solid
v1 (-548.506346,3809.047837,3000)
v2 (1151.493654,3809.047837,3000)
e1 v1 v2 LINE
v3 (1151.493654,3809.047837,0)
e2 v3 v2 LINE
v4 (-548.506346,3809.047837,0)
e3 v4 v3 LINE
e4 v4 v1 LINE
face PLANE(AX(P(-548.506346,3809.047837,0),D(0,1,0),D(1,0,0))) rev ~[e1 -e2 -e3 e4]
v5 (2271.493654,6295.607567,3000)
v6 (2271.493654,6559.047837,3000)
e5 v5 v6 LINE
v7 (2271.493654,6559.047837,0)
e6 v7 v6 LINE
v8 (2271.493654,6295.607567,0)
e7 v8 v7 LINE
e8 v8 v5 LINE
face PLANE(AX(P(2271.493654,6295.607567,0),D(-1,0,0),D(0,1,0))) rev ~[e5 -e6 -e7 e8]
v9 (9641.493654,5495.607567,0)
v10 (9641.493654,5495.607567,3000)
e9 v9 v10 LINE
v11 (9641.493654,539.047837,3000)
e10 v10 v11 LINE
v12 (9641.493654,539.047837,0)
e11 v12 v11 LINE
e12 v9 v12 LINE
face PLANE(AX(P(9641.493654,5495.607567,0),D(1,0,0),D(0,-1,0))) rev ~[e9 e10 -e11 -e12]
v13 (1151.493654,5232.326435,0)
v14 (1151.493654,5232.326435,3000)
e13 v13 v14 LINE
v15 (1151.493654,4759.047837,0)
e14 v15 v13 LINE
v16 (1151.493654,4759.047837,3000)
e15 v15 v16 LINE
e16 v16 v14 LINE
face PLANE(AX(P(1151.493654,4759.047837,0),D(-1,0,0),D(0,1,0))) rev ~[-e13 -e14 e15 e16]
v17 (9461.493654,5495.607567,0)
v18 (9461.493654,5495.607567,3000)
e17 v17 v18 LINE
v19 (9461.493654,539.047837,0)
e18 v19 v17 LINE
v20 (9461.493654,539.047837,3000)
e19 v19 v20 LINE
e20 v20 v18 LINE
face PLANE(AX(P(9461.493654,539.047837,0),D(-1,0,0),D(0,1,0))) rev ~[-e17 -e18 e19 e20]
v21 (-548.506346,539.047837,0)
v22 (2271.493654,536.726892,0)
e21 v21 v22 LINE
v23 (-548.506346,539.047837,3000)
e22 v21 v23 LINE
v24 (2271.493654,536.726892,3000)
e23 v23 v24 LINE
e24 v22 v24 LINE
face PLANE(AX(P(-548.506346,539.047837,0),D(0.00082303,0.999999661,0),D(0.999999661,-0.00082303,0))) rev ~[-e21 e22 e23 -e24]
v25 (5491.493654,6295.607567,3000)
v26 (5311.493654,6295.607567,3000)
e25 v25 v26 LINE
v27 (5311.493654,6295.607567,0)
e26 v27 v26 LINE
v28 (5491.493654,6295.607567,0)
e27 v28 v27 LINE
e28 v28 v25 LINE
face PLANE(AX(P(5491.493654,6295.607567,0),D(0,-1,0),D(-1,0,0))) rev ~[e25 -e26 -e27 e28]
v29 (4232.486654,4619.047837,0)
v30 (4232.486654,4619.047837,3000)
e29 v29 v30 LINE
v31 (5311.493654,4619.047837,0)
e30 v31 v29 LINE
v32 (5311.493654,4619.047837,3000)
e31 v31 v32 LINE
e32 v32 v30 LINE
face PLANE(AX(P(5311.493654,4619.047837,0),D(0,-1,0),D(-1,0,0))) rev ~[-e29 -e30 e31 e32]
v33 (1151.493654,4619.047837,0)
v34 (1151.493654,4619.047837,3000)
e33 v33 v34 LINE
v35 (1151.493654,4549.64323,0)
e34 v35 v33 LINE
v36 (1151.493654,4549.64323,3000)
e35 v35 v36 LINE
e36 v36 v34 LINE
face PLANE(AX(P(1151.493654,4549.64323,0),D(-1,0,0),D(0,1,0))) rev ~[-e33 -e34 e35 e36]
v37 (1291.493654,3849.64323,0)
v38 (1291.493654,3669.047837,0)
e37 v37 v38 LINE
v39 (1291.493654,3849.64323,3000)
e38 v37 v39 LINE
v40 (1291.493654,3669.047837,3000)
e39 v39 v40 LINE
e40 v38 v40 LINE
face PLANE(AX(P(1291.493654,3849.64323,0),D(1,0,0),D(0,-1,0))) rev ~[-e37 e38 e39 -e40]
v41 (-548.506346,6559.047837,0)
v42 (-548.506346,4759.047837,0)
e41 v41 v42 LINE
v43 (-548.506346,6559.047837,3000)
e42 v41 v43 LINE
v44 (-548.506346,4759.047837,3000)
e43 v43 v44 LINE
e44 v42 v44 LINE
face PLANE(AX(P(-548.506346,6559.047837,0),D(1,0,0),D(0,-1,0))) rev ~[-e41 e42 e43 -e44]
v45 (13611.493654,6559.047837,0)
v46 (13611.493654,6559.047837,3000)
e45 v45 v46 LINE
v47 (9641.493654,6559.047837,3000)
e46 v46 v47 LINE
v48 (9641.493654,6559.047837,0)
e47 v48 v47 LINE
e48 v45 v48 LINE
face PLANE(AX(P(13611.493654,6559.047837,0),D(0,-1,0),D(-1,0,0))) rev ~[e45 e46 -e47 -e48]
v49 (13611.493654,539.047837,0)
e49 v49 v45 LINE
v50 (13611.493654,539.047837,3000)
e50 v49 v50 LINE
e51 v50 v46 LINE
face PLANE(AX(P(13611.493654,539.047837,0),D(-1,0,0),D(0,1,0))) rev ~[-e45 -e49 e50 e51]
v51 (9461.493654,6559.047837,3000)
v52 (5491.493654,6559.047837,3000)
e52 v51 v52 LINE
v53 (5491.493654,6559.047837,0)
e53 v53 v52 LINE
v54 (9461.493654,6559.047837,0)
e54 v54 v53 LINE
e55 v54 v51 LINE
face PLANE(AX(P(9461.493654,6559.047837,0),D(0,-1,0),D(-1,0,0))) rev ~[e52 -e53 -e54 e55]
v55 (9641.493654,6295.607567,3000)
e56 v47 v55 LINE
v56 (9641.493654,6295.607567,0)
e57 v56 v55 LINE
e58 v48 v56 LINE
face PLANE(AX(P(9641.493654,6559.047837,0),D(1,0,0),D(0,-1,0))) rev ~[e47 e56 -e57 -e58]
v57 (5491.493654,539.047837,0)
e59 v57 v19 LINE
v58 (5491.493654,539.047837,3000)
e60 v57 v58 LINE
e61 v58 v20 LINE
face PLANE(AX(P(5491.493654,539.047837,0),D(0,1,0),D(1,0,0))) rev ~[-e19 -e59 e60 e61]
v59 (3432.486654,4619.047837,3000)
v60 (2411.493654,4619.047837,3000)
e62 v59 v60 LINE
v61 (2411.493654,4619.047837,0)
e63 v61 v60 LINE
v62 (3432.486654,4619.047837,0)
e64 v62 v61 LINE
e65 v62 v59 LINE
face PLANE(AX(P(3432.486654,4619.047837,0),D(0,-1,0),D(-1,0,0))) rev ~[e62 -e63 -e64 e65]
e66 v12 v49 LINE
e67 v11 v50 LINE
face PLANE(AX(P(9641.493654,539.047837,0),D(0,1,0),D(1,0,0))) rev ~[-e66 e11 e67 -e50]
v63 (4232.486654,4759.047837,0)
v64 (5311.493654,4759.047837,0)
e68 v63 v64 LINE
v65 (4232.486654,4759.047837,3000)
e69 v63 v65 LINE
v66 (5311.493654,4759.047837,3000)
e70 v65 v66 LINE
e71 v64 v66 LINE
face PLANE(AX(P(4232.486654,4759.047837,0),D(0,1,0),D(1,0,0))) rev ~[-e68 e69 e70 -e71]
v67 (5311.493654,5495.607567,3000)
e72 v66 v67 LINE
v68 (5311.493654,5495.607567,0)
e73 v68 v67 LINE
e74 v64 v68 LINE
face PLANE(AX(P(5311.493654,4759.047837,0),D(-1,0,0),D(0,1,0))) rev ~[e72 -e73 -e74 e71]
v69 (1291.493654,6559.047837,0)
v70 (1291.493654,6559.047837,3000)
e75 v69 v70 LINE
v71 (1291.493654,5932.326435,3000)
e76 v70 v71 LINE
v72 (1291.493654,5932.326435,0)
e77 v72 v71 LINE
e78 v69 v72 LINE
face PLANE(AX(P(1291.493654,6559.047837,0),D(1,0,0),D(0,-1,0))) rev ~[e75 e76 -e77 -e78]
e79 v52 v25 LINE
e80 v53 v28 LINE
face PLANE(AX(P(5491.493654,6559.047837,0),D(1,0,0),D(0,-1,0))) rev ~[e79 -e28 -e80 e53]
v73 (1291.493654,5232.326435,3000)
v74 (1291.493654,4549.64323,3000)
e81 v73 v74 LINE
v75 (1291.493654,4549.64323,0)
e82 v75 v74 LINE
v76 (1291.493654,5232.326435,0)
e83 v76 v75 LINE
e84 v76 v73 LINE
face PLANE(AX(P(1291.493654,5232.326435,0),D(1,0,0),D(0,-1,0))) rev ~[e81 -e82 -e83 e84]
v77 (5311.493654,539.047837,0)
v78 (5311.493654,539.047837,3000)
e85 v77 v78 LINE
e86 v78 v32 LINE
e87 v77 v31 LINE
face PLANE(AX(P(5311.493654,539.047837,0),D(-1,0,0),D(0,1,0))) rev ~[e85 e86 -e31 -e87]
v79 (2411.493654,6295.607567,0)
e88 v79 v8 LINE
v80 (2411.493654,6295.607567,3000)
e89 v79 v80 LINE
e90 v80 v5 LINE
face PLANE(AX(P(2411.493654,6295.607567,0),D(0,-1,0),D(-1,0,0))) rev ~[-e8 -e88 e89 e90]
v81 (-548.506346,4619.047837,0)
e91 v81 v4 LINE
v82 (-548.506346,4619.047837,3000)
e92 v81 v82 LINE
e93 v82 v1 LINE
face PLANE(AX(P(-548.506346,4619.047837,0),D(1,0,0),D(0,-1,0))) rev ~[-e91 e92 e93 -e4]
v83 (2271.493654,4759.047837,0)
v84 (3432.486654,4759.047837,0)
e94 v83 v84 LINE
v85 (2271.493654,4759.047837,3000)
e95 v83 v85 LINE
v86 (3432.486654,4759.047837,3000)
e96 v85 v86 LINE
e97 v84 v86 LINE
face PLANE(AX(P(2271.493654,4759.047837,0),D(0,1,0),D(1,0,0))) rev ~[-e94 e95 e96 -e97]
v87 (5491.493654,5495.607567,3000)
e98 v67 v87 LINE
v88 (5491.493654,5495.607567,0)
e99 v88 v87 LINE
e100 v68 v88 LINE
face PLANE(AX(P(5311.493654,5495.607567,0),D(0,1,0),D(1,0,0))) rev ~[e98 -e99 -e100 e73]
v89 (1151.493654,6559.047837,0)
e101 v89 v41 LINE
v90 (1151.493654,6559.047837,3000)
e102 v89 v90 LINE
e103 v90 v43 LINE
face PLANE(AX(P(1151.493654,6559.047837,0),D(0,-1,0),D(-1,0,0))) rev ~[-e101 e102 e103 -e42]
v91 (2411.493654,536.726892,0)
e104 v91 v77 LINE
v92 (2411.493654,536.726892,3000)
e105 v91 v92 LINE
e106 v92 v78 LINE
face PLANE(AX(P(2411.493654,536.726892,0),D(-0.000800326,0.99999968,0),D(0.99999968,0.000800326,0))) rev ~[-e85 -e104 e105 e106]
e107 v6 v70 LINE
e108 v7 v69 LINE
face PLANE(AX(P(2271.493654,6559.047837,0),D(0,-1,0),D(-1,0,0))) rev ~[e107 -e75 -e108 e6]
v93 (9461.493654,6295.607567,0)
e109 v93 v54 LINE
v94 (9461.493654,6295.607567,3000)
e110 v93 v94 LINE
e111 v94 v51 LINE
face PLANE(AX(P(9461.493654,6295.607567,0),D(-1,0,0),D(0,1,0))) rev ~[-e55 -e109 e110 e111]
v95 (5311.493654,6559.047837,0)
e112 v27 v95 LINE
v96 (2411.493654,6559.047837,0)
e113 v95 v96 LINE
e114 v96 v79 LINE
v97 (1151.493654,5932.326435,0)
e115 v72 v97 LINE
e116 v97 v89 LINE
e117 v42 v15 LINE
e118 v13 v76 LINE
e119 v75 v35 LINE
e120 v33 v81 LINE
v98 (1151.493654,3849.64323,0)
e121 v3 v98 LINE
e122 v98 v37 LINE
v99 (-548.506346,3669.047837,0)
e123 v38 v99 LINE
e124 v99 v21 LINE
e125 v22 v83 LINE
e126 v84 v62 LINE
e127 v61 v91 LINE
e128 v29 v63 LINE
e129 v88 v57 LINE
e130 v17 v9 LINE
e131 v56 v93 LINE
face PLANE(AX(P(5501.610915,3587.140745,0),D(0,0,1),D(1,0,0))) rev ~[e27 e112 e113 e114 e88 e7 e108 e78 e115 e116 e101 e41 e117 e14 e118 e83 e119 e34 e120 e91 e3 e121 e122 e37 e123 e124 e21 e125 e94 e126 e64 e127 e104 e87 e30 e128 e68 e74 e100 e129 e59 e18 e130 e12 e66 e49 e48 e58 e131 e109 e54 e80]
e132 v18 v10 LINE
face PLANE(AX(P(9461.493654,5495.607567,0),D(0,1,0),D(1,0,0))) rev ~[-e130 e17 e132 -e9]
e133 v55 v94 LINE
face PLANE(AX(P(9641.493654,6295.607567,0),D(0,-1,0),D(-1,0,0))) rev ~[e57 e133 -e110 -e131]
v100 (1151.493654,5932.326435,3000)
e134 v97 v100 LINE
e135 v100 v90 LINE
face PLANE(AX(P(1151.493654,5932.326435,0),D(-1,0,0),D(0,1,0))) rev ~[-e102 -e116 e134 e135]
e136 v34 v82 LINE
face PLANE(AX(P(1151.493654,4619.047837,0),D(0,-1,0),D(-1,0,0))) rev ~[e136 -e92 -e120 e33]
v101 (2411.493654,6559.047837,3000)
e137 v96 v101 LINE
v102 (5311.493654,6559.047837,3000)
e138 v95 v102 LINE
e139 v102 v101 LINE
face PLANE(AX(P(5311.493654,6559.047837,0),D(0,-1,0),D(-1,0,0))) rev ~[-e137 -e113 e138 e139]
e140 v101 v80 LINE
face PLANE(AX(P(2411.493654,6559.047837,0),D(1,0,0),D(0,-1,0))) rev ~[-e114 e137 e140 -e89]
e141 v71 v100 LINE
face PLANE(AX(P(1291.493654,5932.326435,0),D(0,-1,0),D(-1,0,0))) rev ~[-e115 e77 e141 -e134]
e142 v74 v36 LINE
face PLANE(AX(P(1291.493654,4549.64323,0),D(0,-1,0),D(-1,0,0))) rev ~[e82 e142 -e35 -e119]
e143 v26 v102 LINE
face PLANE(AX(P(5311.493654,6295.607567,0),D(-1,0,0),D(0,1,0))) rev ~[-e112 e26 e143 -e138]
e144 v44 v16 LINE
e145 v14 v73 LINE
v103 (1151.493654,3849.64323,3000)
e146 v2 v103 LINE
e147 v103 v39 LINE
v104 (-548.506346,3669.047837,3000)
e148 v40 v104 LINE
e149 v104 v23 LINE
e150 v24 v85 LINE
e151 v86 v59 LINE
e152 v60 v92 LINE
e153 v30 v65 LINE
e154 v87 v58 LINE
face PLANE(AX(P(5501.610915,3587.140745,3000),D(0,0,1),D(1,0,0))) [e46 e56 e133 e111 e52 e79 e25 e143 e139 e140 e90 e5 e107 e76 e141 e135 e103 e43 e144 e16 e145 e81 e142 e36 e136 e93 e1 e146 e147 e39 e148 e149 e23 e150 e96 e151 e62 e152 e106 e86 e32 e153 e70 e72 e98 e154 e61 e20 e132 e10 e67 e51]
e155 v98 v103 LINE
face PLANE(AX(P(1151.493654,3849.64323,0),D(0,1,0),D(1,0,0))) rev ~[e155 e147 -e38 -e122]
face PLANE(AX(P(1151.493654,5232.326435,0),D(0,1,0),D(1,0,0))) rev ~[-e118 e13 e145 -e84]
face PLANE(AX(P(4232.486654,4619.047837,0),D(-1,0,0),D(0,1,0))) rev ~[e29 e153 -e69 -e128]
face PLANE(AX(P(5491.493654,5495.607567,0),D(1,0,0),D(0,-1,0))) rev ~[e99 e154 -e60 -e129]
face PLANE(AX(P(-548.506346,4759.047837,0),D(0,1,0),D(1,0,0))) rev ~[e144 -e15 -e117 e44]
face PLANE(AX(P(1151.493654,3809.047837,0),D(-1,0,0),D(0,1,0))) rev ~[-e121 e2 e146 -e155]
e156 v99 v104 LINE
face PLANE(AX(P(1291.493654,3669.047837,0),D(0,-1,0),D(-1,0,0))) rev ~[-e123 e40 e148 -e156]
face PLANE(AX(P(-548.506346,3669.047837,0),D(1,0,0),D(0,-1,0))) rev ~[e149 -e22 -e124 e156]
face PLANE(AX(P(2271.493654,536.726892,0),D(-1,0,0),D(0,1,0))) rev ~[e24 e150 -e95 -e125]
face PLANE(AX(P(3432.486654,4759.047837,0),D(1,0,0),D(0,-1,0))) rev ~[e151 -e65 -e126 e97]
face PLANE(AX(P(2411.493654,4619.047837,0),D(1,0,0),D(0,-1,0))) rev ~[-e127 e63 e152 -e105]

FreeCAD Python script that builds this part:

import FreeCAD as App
import Part
import Sketcher
Q = App.Units.Quantity

doc = App.newDocument("Part")
body = doc.addObject("PartDesign::Body", "Body")

# Sketch on XY plane
sketch1 = body.newObject("Sketcher::SketchObject", "Sketch")
sketch1.AttachmentSupport = (doc.getObject("XY_Plane"), [""])
sketch1.MapMode = "FlatFace"
sketch1.addGeometry([
    Part.LineSegment(App.Vector(-549, 3669, 0), App.Vector(-549, 539, 0)),  # 0
    Part.LineSegment(App.Vector(-549, 539, 0), App.Vector(2271, 537, 0)),  # 1
    Part.LineSegment(App.Vector(2271, 537, 0), App.Vector(2271, 4759, 0)),  # 2
    Part.LineSegment(App.Vector(2271, 4759, 0), App.Vector(3432, 4759, 0)),  # 3
    Part.LineSegment(App.Vector(3432, 4759, 0), App.Vector(3432, 4619, 0)),  # 4
    Part.LineSegment(App.Vector(3432, 4619, 0), App.Vector(2411, 4619, 0)),  # 5
    Part.LineSegment(App.Vector(2411, 4619, 0), App.Vector(2411, 537, 0)),  # 6
    Part.LineSegment(App.Vector(2411, 537, 0), App.Vector(5311, 539, 0)),  # 7
    Part.LineSegment(App.Vector(5311, 539, 0), App.Vector(5311, 4619, 0)),  # 8
    Part.LineSegment(App.Vector(5311, 4619, 0), App.Vector(4232, 4619, 0)),  # 9
    Part.LineSegment(App.Vector(4232, 4619, 0), App.Vector(4232, 4759, 0)),  # 10
    Part.LineSegment(App.Vector(4232, 4759, 0), App.Vector(5311, 4759, 0)),  # 11
    Part.LineSegment(App.Vector(5311, 4759, 0), App.Vector(5311, 5496, 0)),  # 12
    Part.LineSegment(App.Vector(5311, 5496, 0), App.Vector(5491, 5496, 0)),  # 13
    Part.LineSegment(App.Vector(5491, 5496, 0), App.Vector(5491, 539, 0)),  # 14
    Part.LineSegment(App.Vector(5491, 539, 0), App.Vector(9461, 539, 0)),  # 15
    Part.LineSegment(App.Vector(9461, 539, 0), App.Vector(9461, 5496, 0)),  # 16
    Part.LineSegment(App.Vector(9461, 5496, 0), App.Vector(9641, 5496, 0)),  # 17
    Part.LineSegment(App.Vector(9641, 5496, 0), App.Vector(9641, 539, 0)),  # 18
    Part.LineSegment(App.Vector(9641, 539, 0), App.Vector(13611, 539, 0)),  # 19
    Part.LineSegment(App.Vector(13611, 539, 0), App.Vector(13611, 6559, 0)),  # 20
    Part.LineSegment(App.Vector(13611, 6559, 0), App.Vector(9641, 6559, 0)),  # 21
    Part.LineSegment(App.Vector(9641, 6559, 0), App.Vector(9641, 6296, 0)),  # 22
    Part.LineSegment(App.Vector(9641, 6296, 0), App.Vector(9461, 6296, 0)),  # 23
    Part.LineSegment(App.Vector(9461, 6296, 0), App.Vector(9461, 6559, 0)),  # 24
    Part.LineSegment(App.Vector(9461, 6559, 0), App.Vector(5491, 6559, 0)),  # 25
    Part.LineSegment(App.Vector(5491, 6559, 0), App.Vector(5491, 6296, 0)),  # 26
    Part.LineSegment(App.Vector(5491, 6296, 0), App.Vector(5311, 6296, 0)),  # 27
    Part.LineSegment(App.Vector(5311, 6296, 0), App.Vector(5311, 6559, 0)),  # 28
    Part.LineSegment(App.Vector(5311, 6559, 0), App.Vector(2411, 6559, 0)),  # 29
    Part.LineSegment(App.Vector(2411, 6559, 0), App.Vector(2411, 6296, 0)),  # 30
    Part.LineSegment(App.Vector(2411, 6296, 0), App.Vector(2271, 6296, 0)),  # 31
    Part.LineSegment(App.Vector(2271, 6296, 0), App.Vector(2271, 6559, 0)),  # 32
    Part.LineSegment(App.Vector(2271, 6559, 0), App.Vector(1291, 6559, 0)),  # 33
    Part.LineSegment(App.Vector(1291, 6559, 0), App.Vector(1291, 5932, 0)),  # 34
    Part.LineSegment(App.Vector(1291, 5932, 0), App.Vector(1151, 5932, 0)),  # 35
    Part.LineSegment(App.Vector(1151, 5932, 0), App.Vector(1151, 6559, 0)),  # 36
    Part.LineSegment(App.Vector(1151, 6559, 0), App.Vector(-549, 6559, 0)),  # 37
    Part.LineSegment(App.Vector(-549, 6559, 0), App.Vector(-549, 4759, 0)),  # 38
    Part.LineSegment(App.Vector(-549, 4759, 0), App.Vector(1151, 4759, 0)),  # 39
    Part.LineSegment(App.Vector(1151, 4759, 0), App.Vector(1151, 5232, 0)),  # 40
    Part.LineSegment(App.Vector(1151, 5232, 0), App.Vector(1291, 5232, 0)),  # 41
    Part.LineSegment(App.Vector(1291, 5232, 0), App.Vector(1291, 4550, 0)),  # 42
    Part.LineSegment(App.Vector(1291, 4550, 0), App.Vector(1151, 4550, 0)),  # 43
    Part.LineSegment(App.Vector(1151, 4550, 0), App.Vector(1151, 4619, 0)),  # 44
    Part.LineSegment(App.Vector(1151, 4619, 0), App.Vector(-549, 4619, 0)),  # 45
    Part.LineSegment(App.Vector(-549, 4619, 0), App.Vector(-549, 3809, 0)),  # 46
    Part.LineSegment(App.Vector(-549, 3809, 0), App.Vector(1151, 3809, 0)),  # 47
    Part.LineSegment(App.Vector(1151, 3809, 0), App.Vector(1151, 3850, 0)),  # 48
    Part.LineSegment(App.Vector(1151, 3850, 0), App.Vector(1291, 3850, 0)),  # 49
    Part.LineSegment(App.Vector(1291, 3850, 0), App.Vector(1291, 3669, 0)),  # 50
    Part.LineSegment(App.Vector(1291, 3669, 0), App.Vector(-549, 3669, 0)),  # 51
], False)
sketch1.addConstraint([
    Sketcher.Constraint("Coincident", 0, 2, 1, 1),
    Sketcher.Constraint("Coincident", 1, 2, 2, 1),
    Sketcher.Constraint("Coincident", 2, 2, 3, 1),
    Sketcher.Constraint("Coincident", 3, 2, 4, 1),
    Sketcher.Constraint("Coincident", 4, 2, 5, 1),
    Sketcher.Constraint("Coincident", 5, 2, 6, 1),
    Sketcher.Constraint("Coincident", 6, 2, 7, 1),
    Sketcher.Constraint("Coincident", 7, 2, 8, 1),
    Sketcher.Constraint("Coincident", 8, 2, 9, 1),
    Sketcher.Constraint("Coincident", 9, 2, 10, 1),
    Sketcher.Constraint("Coincident", 10, 2, 11, 1),
    Sketcher.Constraint("Coincident", 11, 2, 12, 1),
    Sketcher.Constraint("Coincident", 12, 2, 13, 1),
    Sketcher.Constraint("Coincident", 13, 2, 14, 1),
    Sketcher.Constraint("Coincident", 14, 2, 15, 1),
    Sketcher.Constraint("Coincident", 15, 2, 16, 1),
    Sketcher.Constraint("Coincident", 16, 2, 17, 1),
    Sketcher.Constraint("Coincident", 17, 2, 18, 1),
    Sketcher.Constraint("Coincident", 18, 2, 19, 1),
    Sketcher.Constraint("Coincident", 19, 2, 20, 1),
    Sketcher.Constraint("Coincident", 20, 2, 21, 1),
    Sketcher.Constraint("Coincident", 21, 2, 22, 1),
    Sketcher.Constraint("Coincident", 22, 2, 23, 1),
    Sketcher.Constraint("Coincident", 23, 2, 24, 1),
    Sketcher.Constraint("Coincident", 24, 2, 25, 1),
    Sketcher.Constraint("Coincident", 25, 2, 26, 1),
    Sketcher.Constraint("Coincident", 26, 2, 27, 1),
    Sketcher.Constraint("Coincident", 27, 2, 28, 1),
    Sketcher.Constraint("Coincident", 28, 2, 29, 1),
    Sketcher.Constraint("Coincident", 29, 2, 30, 1),
    Sketcher.Constraint("Coincident", 30, 2, 31, 1),
    Sketcher.Constraint("Coincident", 31, 2, 32, 1),
    Sketcher.Constraint("Coincident", 32, 2, 33, 1),
    Sketcher.Constraint("Coincident", 33, 2, 34, 1),
    Sketcher.Constraint("Coincident", 34, 2, 35, 1),
    Sketcher.Constraint("Coincident", 35, 2, 36, 1),
    Sketcher.Constraint("Coincident", 36, 2, 37, 1),
    Sketcher.Constraint("Coincident", 37, 2, 38, 1),
    Sketcher.Constraint("Coincident", 38, 2, 39, 1),
    Sketcher.Constraint("Coincident", 39, 2, 40, 1),
    Sketcher.Constraint("Coincident", 40, 2, 41, 1),
    Sketcher.Constraint("Coincident", 41, 2, 42, 1),
    Sketcher.Constraint("Coincident", 42, 2, 43, 1),
    Sketcher.Constraint("Coincident", 43, 2, 44, 1),
    Sketcher.Constraint("Coincident", 44, 2, 45, 1),
    Sketcher.Constraint("Coincident", 45, 2, 46, 1),
    Sketcher.Constraint("Coincident", 46, 2, 47, 1),
    Sketcher.Constraint("Coincident", 47, 2, 48, 1),
    Sketcher.Constraint("Coincident", 48, 2, 49, 1),
    Sketcher.Constraint("Coincident", 49, 2, 50, 1),
    Sketcher.Constraint("Coincident", 50, 2, 51, 1),
    Sketcher.Constraint("Coincident", 51, 2, 0, 1),
    Sketcher.Constraint("Vertical", 0),
    Sketcher.Constraint("Vertical", 2),
    Sketcher.Constraint("Horizontal", 3),
    Sketcher.Constraint("Vertical", 4),
    Sketcher.Constraint("Horizontal", 5),
    Sketcher.Constraint("Vertical", 6),
    Sketcher.Constraint("Vertical", 8),
    Sketcher.Constraint("Horizontal", 9),
    Sketcher.Constraint("Vertical", 10),
    Sketcher.Constraint("Horizontal", 11),
    Sketcher.Constraint("Vertical", 12),
    Sketcher.Constraint("Horizontal", 13),
    Sketcher.Constraint("Vertical", 14),
    Sketcher.Constraint("Horizontal", 15),
    Sketcher.Constraint("Vertical", 16),
    Sketcher.Constraint("Horizontal", 17),
    Sketcher.Constraint("Vertical", 18),
    Sketcher.Constraint("Horizontal", 19),
    Sketcher.Constraint("Vertical", 20),
    Sketcher.Constraint("Horizontal", 21),
    Sketcher.Constraint("Vertical", 22),
    Sketcher.Constraint("Horizontal", 23),
    Sketcher.Constraint("Vertical", 24),
    Sketcher.Constraint("Horizontal", 25),
    Sketcher.Constraint("Vertical", 26),
    Sketcher.Constraint("Horizontal", 27),
    Sketcher.Constraint("Vertical", 28),
    Sketcher.Constraint("Horizontal", 29),
    Sketcher.Constraint("Vertical", 30),
    Sketcher.Constraint("Horizontal", 31),
    Sketcher.Constraint("Vertical", 32),
    Sketcher.Constraint("Horizontal", 33),
    Sketcher.Constraint("Vertical", 34),
    Sketcher.Constraint("Horizontal", 35),
    Sketcher.Constraint("Vertical", 36),
    Sketcher.Constraint("Horizontal", 37),
    Sketcher.Constraint("Vertical", 38),
    Sketcher.Constraint("Horizontal", 39),
    Sketcher.Constraint("Vertical", 40),
    Sketcher.Constraint("Horizontal", 41),
    Sketcher.Constraint("Vertical", 42),
    Sketcher.Constraint("Horizontal", 43),
    Sketcher.Constraint("Vertical", 44),
    Sketcher.Constraint("Horizontal", 45),
    Sketcher.Constraint("Vertical", 46),
    Sketcher.Constraint("Horizontal", 47),
    Sketcher.Constraint("Vertical", 48),
    Sketcher.Constraint("Horizontal", 49),
    Sketcher.Constraint("Vertical", 50),
    Sketcher.Constraint("Horizontal", 51),
    Sketcher.Constraint("Horizontal", 1, 2, 6, 2),
    Sketcher.Constraint("Horizontal", 0, 2, 7, 2),
    Sketcher.Constraint("Horizontal", 5, 2, 8, 2),
    Sketcher.Constraint("Horizontal", 3, 2, 10, 2),
    Sketcher.Constraint("Horizontal", 7, 2, 14, 2),
    Sketcher.Constraint("Horizontal", 13, 2, 16, 2),
    Sketcher.Constraint("Horizontal", 15, 2, 18, 2),
    Sketcher.Constraint("Horizontal", 21, 2, 24, 2),
    Sketcher.Constraint("Horizontal", 23, 2, 26, 2),
    Sketcher.Constraint("Horizontal", 25, 2, 28, 2),
    Sketcher.Constraint("Horizontal", 27, 2, 30, 2),
    Sketcher.Constraint("Horizontal", 29, 2, 32, 2),
    Sketcher.Constraint("Horizontal", 33, 2, 36, 2),
    Sketcher.Constraint("Horizontal", 11, 2, 38, 2),
    Sketcher.Constraint("Horizontal", 9, 2, 44, 2),
    Sketcher.Constraint("Vertical", 8, 2, 11, 2),
    Sketcher.Constraint("Vertical", 18, 2, 21, 2),
    Sketcher.Constraint("Vertical", 16, 2, 23, 2),
    Sketcher.Constraint("Vertical", 14, 2, 25, 2),
    Sketcher.Constraint("Vertical", 12, 2, 27, 2),
    Sketcher.Constraint("Vertical", 6, 2, 29, 2),
    Sketcher.Constraint("Vertical", 2, 2, 31, 2),
    Sketcher.Constraint("Vertical", 0, 2, 37, 2),
    Sketcher.Constraint("Vertical", 36, 2, 39, 2),
    Sketcher.Constraint("Vertical", 34, 2, 41, 2),
    Sketcher.Constraint("Vertical", 40, 2, 43, 2),
    Sketcher.Constraint("Vertical", 38, 2, 45, 2),
    Sketcher.Constraint("Vertical", 44, 2, 47, 2),
    Sketcher.Constraint("Vertical", 42, 2, 49, 2),
    Sketcher.Constraint("Equal", 13, 17),
    Sketcher.Constraint("Equal", 15, 19),
    Sketcher.Constraint("Equal", 31, 35),
    Sketcher.Constraint("Equal", 49, 4),
    Sketcher.Constraint("DistanceX", 13, 1, 13, 2, Q("180 mm")),
    Sketcher.Constraint("DistanceX", 15, 1, 15, 2, Q("3970 mm")),
    Sketcher.Constraint("DistanceX", 29, 2, 29, 1, Q("2900 mm")),
    Sketcher.Constraint("DistanceX", 31, 2, 31, 1, Q("140 mm")),
    Sketcher.Constraint("DistanceX", 33, 2, 33, 1, Q("980 mm")),
    Sketcher.Constraint("DistanceX", 37, 2, 37, 1, Q("1700 mm")),
    Sketcher.Constraint("DistanceY", 0, 2, 0, 1, Q("3130 mm")),
    Sketcher.Constraint("DistanceY", 8, 1, 8, 2, Q("4080 mm")),
    Sketcher.Constraint("DistanceY", 20, 1, 20, 2, Q("6020 mm")),
    Sketcher.Constraint("DistanceY", 46, 2, 46, 1, Q("810 mm")),
    Sketcher.Constraint("DistanceX", 4, 2, 9, 2, Q("800 mm")),
    Sketcher.Constraint("DistanceY", 17, 2, 22, 2, Q("800 mm")),
    Sketcher.Constraint("DistanceY", 40, 2, 35, 2, Q("700 mm")),
    Sketcher.Constraint("DistanceY", 48, 2, 43, 2, Q("700 mm")),
    Sketcher.Constraint("DistanceX", 3, 1, 3, 2, Q("1160.993 mm")),
    Sketcher.Constraint("DistanceY", 12, 1, 12, 2, Q("736.55973 mm")),
    Sketcher.Constraint("DistanceY", 2, 1, 2, 2, Q("4222.320945 mm")),
    Sketcher.Constraint("DistanceY", 34, 2, 34, 1, Q("626.721402 mm")),
    Sketcher.Constraint("DistanceY", 42, 2, 42, 1, Q("682.683205 mm")),
    Sketcher.Constraint("DistanceY", -1, 1, 1, 2, Q("536.726892 mm")),
    Sketcher.Constraint("DistanceX", 0, 2, -1, 1, Q("548.506346 mm")),
])
pad1 = body.newObject("PartDesign::Pad", "Pad")
pad1.Profile = sketch1
pad1.Length = 3000

doc.recompute()
